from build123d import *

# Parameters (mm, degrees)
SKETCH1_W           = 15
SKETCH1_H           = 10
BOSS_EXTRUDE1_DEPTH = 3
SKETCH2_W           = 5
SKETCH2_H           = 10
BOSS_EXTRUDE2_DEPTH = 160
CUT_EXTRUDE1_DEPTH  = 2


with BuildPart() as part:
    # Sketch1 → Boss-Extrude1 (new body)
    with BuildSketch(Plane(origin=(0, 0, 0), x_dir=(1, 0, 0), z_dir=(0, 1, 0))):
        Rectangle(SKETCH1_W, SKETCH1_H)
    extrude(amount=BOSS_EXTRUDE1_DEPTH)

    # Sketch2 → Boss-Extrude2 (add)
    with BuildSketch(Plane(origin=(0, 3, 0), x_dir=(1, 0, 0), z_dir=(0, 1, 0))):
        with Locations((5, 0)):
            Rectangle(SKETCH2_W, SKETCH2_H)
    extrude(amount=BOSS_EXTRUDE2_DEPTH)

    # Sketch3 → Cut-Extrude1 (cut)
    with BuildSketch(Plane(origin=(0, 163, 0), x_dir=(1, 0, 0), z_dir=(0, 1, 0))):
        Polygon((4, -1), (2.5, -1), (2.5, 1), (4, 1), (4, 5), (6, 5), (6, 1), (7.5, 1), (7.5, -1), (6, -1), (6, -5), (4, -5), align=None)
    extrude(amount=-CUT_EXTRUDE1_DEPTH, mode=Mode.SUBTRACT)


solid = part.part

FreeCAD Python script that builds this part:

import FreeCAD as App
import Part
import Sketcher

V = App.Vector

doc = App.newDocument("Part")
body = doc.addObject("PartDesign::Body", "Body")

sketch1 = doc.addObject("Sketcher::SketchObject", "Sketch")
body.addObject(sketch1)
sketch1.AttachmentSupport = (doc.XZ_Plane, [""])
sketch1.MapMode = "FlatFace"
sketch1.addGeometry(Part.LineSegment(V(-8, -5, 0), V(-8, 5, 0)), False)
sketch1.addGeometry(Part.LineSegment(V(-8, 5, 0), V(8, 5, 0)), False)
sketch1.addGeometry(Part.LineSegment(V(8, 5, 0), V(8, -5, 0)), False)
sketch1.addGeometry(Part.LineSegment(V(8, -5, 0), V(-8, -5, 0)), False)
sketch1.addConstraint(Sketcher.Constraint("Coincident", 0, 2, 1, 1))
sketch1.addConstraint(Sketcher.Constraint("Coincident", 1, 2, 2, 1))
sketch1.addConstraint(Sketcher.Constraint("Coincident", 2, 2, 3, 1))
sketch1.addConstraint(Sketcher.Constraint("Coincident", 3, 2, 0, 1))
sketch1.addConstraint(Sketcher.Constraint("Vertical", 0))
sketch1.addConstraint(Sketcher.Constraint("Horizontal", 1))
sketch1.addConstraint(Sketcher.Constraint("Vertical", 2))
sketch1.addConstraint(Sketcher.Constraint("Horizontal", 3))
sketch1.addConstraint(Sketcher.Constraint("Symmetric", 0, 2, 2, 2, -1, 1))
sketch1.addConstraint(Sketcher.Constraint("DistanceX", 1, 1, 1, 2, 15.0))
sketch1.addConstraint(Sketcher.Constraint("DistanceY", 0, 1, 0, 2, 10.0))
pad1 = doc.addObject("PartDesign::Pad", "Pad")
body.addObject(pad1)
pad1.Profile = sketch1
pad1.Length = 3
pad1.Reversed = True

sketch2 = doc.addObject("Sketcher::SketchObject", "Sketch001")
body.addObject(sketch2)
sketch2.AttachmentSupport = (doc.XZ_Plane, [""])
sketch2.MapMode = "FlatFace"
sketch2.AttachmentOffset = App.Placement(V(0, 0, -3), App.Rotation())
sketch2.addGeometry(Part.LineSegment(V(2, -5, 0), V(2, 5, 0)), False)
sketch2.addGeometry(Part.LineSegment(V(2, 5, 0), V(8, 5, 0)), False)
sketch2.addGeometry(Part.LineSegment(V(8, 5, 0), V(8, -5, 0)), False)
sketch2.addGeometry(Part.LineSegment(V(8, -5, 0), V(2, -5, 0)), False)
sketch2.addConstraint(Sketcher.Constraint("Coincident", 0, 2, 1, 1))
sketch2.addConstraint(Sketcher.Constraint("Coincident", 1, 2, 2, 1))
sketch2.addConstraint(Sketcher.Constraint("Coincident", 2, 2, 3, 1))
sketch2.addConstraint(Sketcher.Constraint("Coincident", 3, 2, 0, 1))
sketch2.addConstraint(Sketcher.Constraint("Vertical", 0))
sketch2.addConstraint(Sketcher.Constraint("Horizontal", 1))
sketch2.addConstraint(Sketcher.Constraint("Vertical", 2))
sketch2.addConstraint(Sketcher.Constraint("Horizontal", 3))
sketch2.addConstraint(Sketcher.Constraint("DistanceX", 1, 1, 1, 2, 5.0))
sketch2.addConstraint(Sketcher.Constraint("DistanceY", 0, 1, 0, 2, 10.0))
sketch2.addConstraint(Sketcher.Constraint("DistanceY", -1, 1, 0, 2, 5.0))
sketch2.addConstraint(Sketcher.Constraint("DistanceX", -1, 1, 0, 2, 2.5))
pad2 = doc.addObject("PartDesign::Pad", "Pad001")
body.addObject(pad2)
pad2.Profile = sketch2
pad2.Length = 160
pad2.Reversed = True

sketch3 = doc.addObject("Sketcher::SketchObject", "Sketch002")
body.addObject(sketch3)
sketch3.AttachmentSupport = (doc.XZ_Plane, [""])
sketch3.MapMode = "FlatFace"
sketch3.AttachmentOffset = App.Placement(V(0, 0, -163), App.Rotation())
sketch3.addGeometry(Part.LineSegment(V(2.5, 1, 0), V(4, 1, 0)), False)
sketch3.addGeometry(Part.LineSegment(V(4, 1, 0), V(4, 5, 0)), False)
sketch3.addGeometry(Part.LineSegment(V(4, 5, 0), V(6, 5, 0)), False)
sketch3.addGeometry(Part.LineSegment(V(6, 5, 0), V(6, 1, 0)), False)
sketch3.addGeometry(Part.LineSegment(V(6, 1, 0), V(7.5, 1, 0)), False)
sketch3.addGeometry(Part.LineSegment(V(7.5, 1, 0), V(7.5, -1, 0)), False)
sketch3.addGeometry(Part.LineSegment(V(7.5, -1, 0), V(6, -1, 0)), False)
sketch3.addGeometry(Part.LineSegment(V(6, -1, 0), V(6, -5, 0)), False)
sketch3.addGeometry(Part.LineSegment(V(6, -5, 0), V(4, -5, 0)), False)
sketch3.addGeometry(Part.LineSegment(V(4, -5, 0), V(4, -1, 0)), False)
sketch3.addGeometry(Part.LineSegment(V(4, -1, 0), V(2.5, -1, 0)), False)
sketch3.addGeometry(Part.LineSegment(V(2.5, -1, 0), V(2.5, 1, 0)), False)
sketch3.addConstraint(Sketcher.Constraint("Coincident", 0, 2, 1, 1))
sketch3.addConstraint(Sketcher.Constraint("Coincident", 1, 2, 2, 1))
sketch3.addConstraint(Sketcher.Constraint("Coincident", 2, 2, 3, 1))
sketch3.addConstraint(Sketcher.Constraint("Coincident", 3, 2, 4, 1))
sketch3.addConstraint(Sketcher.Constraint("Coincident", 4, 2, 5, 1))
sketch3.addConstraint(Sketcher.Constraint("Coincident", 5, 2, 6, 1))
sketch3.addConstraint(Sketcher.Constraint("Coincident", 6, 2, 7, 1))
sketch3.addConstraint(Sketcher.Constraint("Coincident", 7, 2, 8, 1))
sketch3.addConstraint(Sketcher.Constraint("Coincident", 8, 2, 9, 1))
sketch3.addConstraint(Sketcher.Constraint("Coincident", 9, 2, 10, 1))
sketch3.addConstraint(Sketcher.Constraint("Coincident", 10, 2, 11, 1))
sketch3.addConstraint(Sketcher.Constraint("Coincident", 11, 2, 0, 1))
sketch3.addConstraint(Sketcher.Constraint("Horizontal", 0))
sketch3.addConstraint(Sketcher.Constraint("Vertical", 1))
sketch3.addConstraint(Sketcher.Constraint("Horizontal", 2))
sketch3.addConstraint(Sketcher.Constraint("Vertical", 3))
sketch3.addConstraint(Sketcher.Constraint("Horizontal", 4))
sketch3.addConstraint(Sketcher.Constraint("Vertical", 5))
sketch3.addConstraint(Sketcher.Constraint("Horizontal", 6))
sketch3.addConstraint(Sketcher.Constraint("Vertical", 7))
sketch3.addConstraint(Sketcher.Constraint("Horizontal", 8))
sketch3.addConstraint(Sketcher.Constraint("Vertical", 9))
sketch3.addConstraint(Sketcher.Constraint("Horizontal", 10))
sketch3.addConstraint(Sketcher.Constraint("Vertical", 11))
sketch3.addConstraint(Sketcher.Constraint("Symmetric", 3, 2, 6, 2, -1))
sketch3.addConstraint(Sketcher.Constraint("Symmetric", 1, 2, 8, 2, -1))
sketch3.addConstraint(Sketcher.Constraint("Horizontal", 0, 2, 3, 2))
sketch3.addConstraint(Sketcher.Constraint("Horizontal", 6, 2, 9, 2))
sketch3.addConstraint(Sketcher.Constraint("Equal", 0, 4))
sketch3.addConstraint(Sketcher.Constraint("Equal", 8, 5))
sketch3.addConstraint(Sketcher.Constraint("DistanceX", 2, 1, 2, 2, 2.0))
sketch3.addConstraint(Sketcher.Constraint("DistanceY", 1, 1, 1, 2, 4.0))
sketch3.addConstraint(Sketcher.Constraint("DistanceX", 0, 1, 0, 2, 1.5))
sketch3.addConstraint(Sketcher.Constraint("DistanceX", -1, 1, 0, 2, 4.0))
pocket1 = doc.addObject("PartDesign::Pocket", "Pocket")
body.addObject(pocket1)
pocket1.Profile = sketch3
pocket1.Length = 2
pocket1.Reversed = True

doc.recompute()
